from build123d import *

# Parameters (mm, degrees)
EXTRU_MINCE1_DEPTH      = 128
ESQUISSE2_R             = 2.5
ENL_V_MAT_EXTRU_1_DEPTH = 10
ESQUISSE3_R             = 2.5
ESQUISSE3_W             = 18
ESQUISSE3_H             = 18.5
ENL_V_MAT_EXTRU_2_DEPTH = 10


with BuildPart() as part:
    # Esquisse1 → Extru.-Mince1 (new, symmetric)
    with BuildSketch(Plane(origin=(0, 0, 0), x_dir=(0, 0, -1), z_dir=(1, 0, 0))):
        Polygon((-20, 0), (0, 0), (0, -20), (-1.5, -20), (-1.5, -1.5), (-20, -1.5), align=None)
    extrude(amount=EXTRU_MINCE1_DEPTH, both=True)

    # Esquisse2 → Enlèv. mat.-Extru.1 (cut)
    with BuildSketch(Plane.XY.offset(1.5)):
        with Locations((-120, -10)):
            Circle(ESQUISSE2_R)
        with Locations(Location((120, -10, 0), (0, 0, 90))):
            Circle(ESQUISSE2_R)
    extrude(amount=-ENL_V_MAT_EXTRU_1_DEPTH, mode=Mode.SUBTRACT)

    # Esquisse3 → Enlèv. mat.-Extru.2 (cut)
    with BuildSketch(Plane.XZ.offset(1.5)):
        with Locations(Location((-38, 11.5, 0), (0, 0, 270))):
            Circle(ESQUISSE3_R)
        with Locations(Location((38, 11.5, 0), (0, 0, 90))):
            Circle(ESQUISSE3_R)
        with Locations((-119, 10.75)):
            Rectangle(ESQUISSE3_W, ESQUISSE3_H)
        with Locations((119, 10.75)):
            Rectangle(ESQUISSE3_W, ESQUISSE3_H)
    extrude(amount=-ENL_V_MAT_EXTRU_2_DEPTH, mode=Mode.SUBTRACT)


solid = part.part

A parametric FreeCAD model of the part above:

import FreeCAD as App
import Part
import Sketcher

V = App.Vector
Q = App.Units.Quantity

doc = App.newDocument("Part")
params = doc.addObject("Spreadsheet::Sheet", "Params")
for row, (alias, value) in enumerate([
    ("sketch1_width", "20 mm"),
    ("sketch1_width2", "1.5 mm"),
    ("pad1_length", "256 mm"),
    ("sketch2_diameter", "5 mm"),
    ("pocket1_length", "10 mm"),
    ("sketch3_diameter", "5 mm"),
    ("sketch3_width", "18 mm"),
    ("sketch3_height", "18.5 mm"),
    ("pocket2_length", "10 mm"),
], start=1):
    params.set(f"A{row}", alias)
    params.set(f"B{row}", "=" + value)
    params.setAlias(f"B{row}", alias)

body = doc.addObject("PartDesign::Body", "Body")

sketch1 = body.newObject("Sketcher::SketchObject", "Sketch")
sketch1.AttachmentSupport = (doc.getObject("YZ_Plane"), [""])
sketch1.MapMode = "FlatFace"
sketch1.addGeometry([
    Part.LineSegment(V(0, 0, 0), V(0, 20, 0)),
    Part.LineSegment(V(0, 20, 0), V(-1.5, 20, 0)),
    Part.LineSegment(V(-1.5, 20, 0), V(-1.5, 1.5, 0)),
    Part.LineSegment(V(-1.5, 1.5, 0), V(-20, 1.5, 0)),
    Part.LineSegment(V(-20, 1.5, 0), V(-20, 0, 0)),
    Part.LineSegment(V(-20, 0, 0), V(0, 0, 0)),
], False)
sketch1.addConstraint([
    Sketcher.Constraint("Coincident", 0, 2, 1, 1),
    Sketcher.Constraint("Coincident", 1, 2, 2, 1),
    Sketcher.Constraint("Coincident", 2, 2, 3, 1),
    Sketcher.Constraint("Coincident", 3, 2, 4, 1),
    Sketcher.Constraint("Coincident", 4, 2, 5, 1),
    Sketcher.Constraint("Coincident", 5, 2, 0, 1),
    Sketcher.Constraint("Vertical", 0),
    Sketcher.Constraint("Horizontal", 1),
    Sketcher.Constraint("Vertical", 2),
    Sketcher.Constraint("Horizontal", 3),
    Sketcher.Constraint("Vertical", 4),
    Sketcher.Constraint("Horizontal", 5),
    Sketcher.Constraint("Coincident", 5, 2, -1, 1),
    Sketcher.Constraint("Equal", 5, 0),
    Sketcher.Constraint("Equal", 3, 2),
    Sketcher.Constraint("DistanceX", 5, 1, 5, 2, Q("20 mm")),
    Sketcher.Constraint("DistanceX", 1, 2, 1, 1, Q("1.5 mm")),
])
sketch1.setExpression("Constraints[15]", "Params.sketch1_width")
sketch1.setExpression("Constraints[16]", "Params.sketch1_width2")
pad1 = body.newObject("PartDesign::Pad", "Pad")
pad1.Profile = sketch1
pad1.setExpression("Length", "Params.pad1_length")
pad1.Midplane = True

sketch2 = body.newObject("Sketcher::SketchObject", "Sketch001")
sketch2.AttachmentSupport = (doc.getObject("XY_Plane"), [""])
sketch2.MapMode = "FlatFace"
sketch2.AttachmentOffset = App.Placement(V(0, 0, 1.5), App.Rotation())
sketch2.addGeometry([
    Part.Circle(V(-120, -10, 0), V(0, 0, 1), 2.5),
    Part.Circle(V(120, -10, 0), V(0, 0, 1), 2.5),
], False)
sketch2.addConstraint([
    Sketcher.Constraint("Equal", 0, 1),
    Sketcher.Constraint("Symmetric", 0, 3, 1, 3, -2),
    Sketcher.Constraint("Diameter", 0, Q("5 mm")),
    Sketcher.Constraint("DistanceX", 0, 3, -1, 1, Q("120 mm")),
    Sketcher.Constraint("DistanceY", 0, 3, -1, 1, Q("10 mm")),
])
sketch2.setExpression("Constraints[2]", "Params.sketch2_diameter")
pocket1 = body.newObject("PartDesign::Pocket", "Pocket")
pocket1.Profile = sketch2
pocket1.setExpression("Length", "Params.pocket1_length")

sketch3 = body.newObject("Sketcher::SketchObject", "Sketch002")
sketch3.AttachmentSupport = (doc.getObject("XZ_Plane"), [""])
sketch3.MapMode = "FlatFace"
sketch3.AttachmentOffset = App.Placement(V(0, 0, 1.5), App.Rotation())
sketch3.addGeometry([
    Part.Circle(V(-38, 11.5, 0), V(0, 0, 1), 2.5),
    Part.Circle(V(38, 11.5, 0), V(0, 0, 1), 2.5),
    Part.LineSegment(V(-128, 20, 0), V(-128, 1.5, 0)),
    Part.LineSegment(V(-128, 1.5, 0), V(-110, 1.5, 0)),
    Part.LineSegment(V(-110, 1.5, 0), V(-110, 20, 0)),
    Part.LineSegment(V(-110, 20, 0), V(-128, 20, 0)),
    Part.LineSegment(V(110, 20, 0), V(110, 1.5, 0)),
    Part.LineSegment(V(110, 1.5, 0), V(128, 1.5, 0)),
    Part.LineSegment(V(128, 1.5, 0), V(128, 20, 0)),
    Part.LineSegment(V(128, 20, 0), V(110, 20, 0)),
], False)
sketch3.addConstraint([
    Sketcher.Constraint("Coincident", 2, 2, 3, 1),
    Sketcher.Constraint("Coincident", 3, 2, 4, 1),
    Sketcher.Constraint("Coincident", 4, 2, 5, 1),
    Sketcher.Constraint("Coincident", 5, 2, 2, 1),
    Sketcher.Constraint("Coincident", 6, 2, 7, 1),
    Sketcher.Constraint("Coincident", 7, 2, 8, 1),
    Sketcher.Constraint("Coincident", 8, 2, 9, 1),
    Sketcher.Constraint("Coincident", 9, 2, 6, 1),
    Sketcher.Constraint("Vertical", 2),
    Sketcher.Constraint("Horizontal", 3),
    Sketcher.Constraint("Vertical", 4),
    Sketcher.Constraint("Horizontal", 5),
    Sketcher.Constraint("Vertical", 6),
    Sketcher.Constraint("Horizontal", 7),
    Sketcher.Constraint("Vertical", 8),
    Sketcher.Constraint("Horizontal", 9),
    Sketcher.Constraint("Equal", 0, 1),
    Sketcher.Constraint("Symmetric", 0, 3, 1, 3, -2),
    Sketcher.Constraint("Symmetric", 3, 2, 6, 2, -2),
    Sketcher.Constraint("Symmetric", 5, 2, 8, 2, -2),
    Sketcher.Constraint("Diameter", 0, Q("5 mm")),
    Sketcher.Constraint("DistanceX", 3, 1, 3, 2, Q("18 mm")),
    Sketcher.Constraint("DistanceY", 2, 2, 2, 1, Q("18.5 mm")),
    Sketcher.Constraint("DistanceX", 0, 3, -1, 1, Q("38 mm")),
    Sketcher.Constraint("DistanceX", 2, 2, -1, 1, Q("128 mm")),
    Sketcher.Constraint("DistanceY", -1, 1, 4, 2, Q("20 mm")),
    Sketcher.Constraint("DistanceY", 2, 2, 0, 3, Q("10 mm")),
])
sketch3.setExpression("Constraints[20]", "Params.sketch3_diameter")
sketch3.setExpression("Constraints[21]", "Params.sketch3_width")
sketch3.setExpression("Constraints[22]", "Params.sketch3_height")
pocket2 = body.newObject("PartDesign::Pocket", "Pocket001")
pocket2.Profile = sketch3
pocket2.setExpression("Length", "Params.pocket2_length")

doc.recompute()
